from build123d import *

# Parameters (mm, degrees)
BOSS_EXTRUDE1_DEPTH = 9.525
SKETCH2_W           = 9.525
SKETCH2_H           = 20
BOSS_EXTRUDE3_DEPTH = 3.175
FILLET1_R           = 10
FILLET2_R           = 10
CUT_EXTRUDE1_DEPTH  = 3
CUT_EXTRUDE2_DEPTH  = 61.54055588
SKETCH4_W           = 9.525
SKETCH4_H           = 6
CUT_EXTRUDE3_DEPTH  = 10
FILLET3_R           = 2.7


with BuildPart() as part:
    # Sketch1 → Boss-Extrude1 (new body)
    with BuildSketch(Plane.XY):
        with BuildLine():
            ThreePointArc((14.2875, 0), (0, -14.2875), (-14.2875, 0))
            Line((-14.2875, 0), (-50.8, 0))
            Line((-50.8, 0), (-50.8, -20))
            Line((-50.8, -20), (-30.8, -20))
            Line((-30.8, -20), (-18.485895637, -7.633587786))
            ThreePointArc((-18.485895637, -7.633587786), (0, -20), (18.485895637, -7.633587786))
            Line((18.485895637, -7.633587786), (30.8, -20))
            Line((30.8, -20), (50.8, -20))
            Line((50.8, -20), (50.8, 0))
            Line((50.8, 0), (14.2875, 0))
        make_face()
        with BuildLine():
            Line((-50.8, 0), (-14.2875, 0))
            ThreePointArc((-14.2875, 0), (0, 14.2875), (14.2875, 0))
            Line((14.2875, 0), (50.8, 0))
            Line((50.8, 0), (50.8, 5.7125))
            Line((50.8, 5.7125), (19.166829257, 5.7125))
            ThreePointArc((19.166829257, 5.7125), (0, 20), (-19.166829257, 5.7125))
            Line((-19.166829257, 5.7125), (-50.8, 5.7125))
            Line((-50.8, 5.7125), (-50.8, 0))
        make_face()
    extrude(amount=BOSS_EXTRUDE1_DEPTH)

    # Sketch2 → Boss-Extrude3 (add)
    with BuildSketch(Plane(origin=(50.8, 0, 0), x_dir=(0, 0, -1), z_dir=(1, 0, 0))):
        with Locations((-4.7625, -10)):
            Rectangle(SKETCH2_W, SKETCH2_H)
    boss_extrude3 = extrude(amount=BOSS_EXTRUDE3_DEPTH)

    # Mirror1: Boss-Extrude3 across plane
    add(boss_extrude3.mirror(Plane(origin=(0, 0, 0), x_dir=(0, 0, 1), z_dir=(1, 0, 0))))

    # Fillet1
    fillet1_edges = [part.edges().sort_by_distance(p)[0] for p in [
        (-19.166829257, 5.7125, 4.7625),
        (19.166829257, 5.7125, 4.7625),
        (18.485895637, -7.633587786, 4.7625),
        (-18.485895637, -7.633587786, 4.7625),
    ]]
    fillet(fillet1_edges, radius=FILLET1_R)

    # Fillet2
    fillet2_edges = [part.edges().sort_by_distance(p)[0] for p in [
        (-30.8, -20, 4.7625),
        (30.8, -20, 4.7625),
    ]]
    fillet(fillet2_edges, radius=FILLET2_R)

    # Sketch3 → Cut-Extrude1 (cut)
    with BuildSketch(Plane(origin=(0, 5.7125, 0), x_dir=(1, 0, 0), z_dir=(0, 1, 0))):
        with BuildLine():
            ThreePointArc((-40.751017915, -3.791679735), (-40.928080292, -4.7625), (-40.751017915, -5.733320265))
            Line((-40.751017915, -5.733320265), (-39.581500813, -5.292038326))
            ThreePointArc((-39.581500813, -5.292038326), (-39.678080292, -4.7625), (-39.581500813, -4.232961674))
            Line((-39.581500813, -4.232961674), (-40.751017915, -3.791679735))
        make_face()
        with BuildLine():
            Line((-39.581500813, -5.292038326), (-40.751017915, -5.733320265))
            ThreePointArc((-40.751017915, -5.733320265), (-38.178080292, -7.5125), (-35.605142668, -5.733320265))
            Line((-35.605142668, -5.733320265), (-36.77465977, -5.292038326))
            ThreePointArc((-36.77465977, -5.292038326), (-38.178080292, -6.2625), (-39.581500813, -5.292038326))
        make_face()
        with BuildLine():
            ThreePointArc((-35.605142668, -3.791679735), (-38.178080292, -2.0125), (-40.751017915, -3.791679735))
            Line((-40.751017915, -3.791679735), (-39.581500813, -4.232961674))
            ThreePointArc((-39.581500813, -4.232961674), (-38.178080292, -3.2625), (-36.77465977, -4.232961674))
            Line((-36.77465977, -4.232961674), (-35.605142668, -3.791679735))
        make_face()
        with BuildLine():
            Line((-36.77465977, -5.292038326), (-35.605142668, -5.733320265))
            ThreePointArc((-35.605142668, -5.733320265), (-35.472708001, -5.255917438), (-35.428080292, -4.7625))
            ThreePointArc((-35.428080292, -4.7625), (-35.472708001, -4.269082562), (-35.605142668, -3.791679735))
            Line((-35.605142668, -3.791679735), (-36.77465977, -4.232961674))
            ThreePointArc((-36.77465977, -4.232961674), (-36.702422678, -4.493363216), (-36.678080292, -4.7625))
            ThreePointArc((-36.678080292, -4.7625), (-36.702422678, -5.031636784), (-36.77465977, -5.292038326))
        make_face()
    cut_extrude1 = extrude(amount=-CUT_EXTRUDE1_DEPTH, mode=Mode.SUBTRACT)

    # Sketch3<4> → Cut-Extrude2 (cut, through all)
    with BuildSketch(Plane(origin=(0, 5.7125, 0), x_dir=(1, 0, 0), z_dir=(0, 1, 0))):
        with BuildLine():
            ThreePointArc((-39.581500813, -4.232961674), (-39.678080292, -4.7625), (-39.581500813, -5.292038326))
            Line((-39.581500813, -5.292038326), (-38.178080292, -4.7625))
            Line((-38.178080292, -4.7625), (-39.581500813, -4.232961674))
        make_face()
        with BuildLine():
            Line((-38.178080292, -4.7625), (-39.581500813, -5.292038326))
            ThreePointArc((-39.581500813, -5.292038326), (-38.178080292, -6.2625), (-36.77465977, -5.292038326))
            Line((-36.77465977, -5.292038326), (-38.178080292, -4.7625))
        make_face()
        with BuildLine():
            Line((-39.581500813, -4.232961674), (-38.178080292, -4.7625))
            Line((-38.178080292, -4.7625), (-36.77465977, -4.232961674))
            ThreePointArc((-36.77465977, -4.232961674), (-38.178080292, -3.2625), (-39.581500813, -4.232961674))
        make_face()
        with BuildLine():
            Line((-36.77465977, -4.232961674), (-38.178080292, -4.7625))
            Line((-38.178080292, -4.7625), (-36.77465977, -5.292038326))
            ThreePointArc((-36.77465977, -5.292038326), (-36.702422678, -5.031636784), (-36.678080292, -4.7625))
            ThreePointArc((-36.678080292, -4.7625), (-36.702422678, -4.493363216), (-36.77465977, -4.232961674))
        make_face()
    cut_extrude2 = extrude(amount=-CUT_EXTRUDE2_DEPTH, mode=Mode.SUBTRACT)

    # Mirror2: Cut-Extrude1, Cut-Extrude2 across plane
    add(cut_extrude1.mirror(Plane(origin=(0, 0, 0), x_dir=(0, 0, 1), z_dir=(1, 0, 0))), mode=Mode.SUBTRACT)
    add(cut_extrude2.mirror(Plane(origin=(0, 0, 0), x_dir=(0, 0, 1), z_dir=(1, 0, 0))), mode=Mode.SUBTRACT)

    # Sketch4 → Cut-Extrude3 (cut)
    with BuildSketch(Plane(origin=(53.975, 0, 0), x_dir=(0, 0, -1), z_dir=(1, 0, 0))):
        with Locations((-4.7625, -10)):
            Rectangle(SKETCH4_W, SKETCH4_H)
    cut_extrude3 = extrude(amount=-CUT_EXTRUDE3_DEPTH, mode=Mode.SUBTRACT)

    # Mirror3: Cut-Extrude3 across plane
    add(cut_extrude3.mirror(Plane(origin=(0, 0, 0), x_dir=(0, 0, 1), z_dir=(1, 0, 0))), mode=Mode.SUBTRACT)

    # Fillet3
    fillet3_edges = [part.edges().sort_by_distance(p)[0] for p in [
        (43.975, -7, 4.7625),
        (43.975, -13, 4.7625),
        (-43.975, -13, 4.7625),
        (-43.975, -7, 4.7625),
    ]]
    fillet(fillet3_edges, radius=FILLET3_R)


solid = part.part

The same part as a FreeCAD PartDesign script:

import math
import FreeCAD as App
import Part
import Sketcher
Q = App.Units.Quantity


def edges_at(feature, points):
    """Names of the edges that pass closest to the given points."""
    edges = feature.Shape.Edges
    near = lambda p: min(range(len(edges)), key=lambda i: edges[i].distToShape(Part.Vertex(*p))[0])
    return sorted({f"Edge{near(p) + 1}" for p in points})


def add_polygon(sketch, points):
    """Adds a closed chain of lines whose ends are joined by coincident constraints."""
    first, n = sketch.GeometryCount, len(points)
    for a, b in zip(points, points[1:] + points[:1]):
        sketch.addGeometry(Part.LineSegment(App.Vector(*a, 0), App.Vector(*b, 0)), False)
    for i in range(n):
        sketch.addConstraint(Sketcher.Constraint("Coincident", first + i, 2, first + (i + 1) % n, 1))

doc = App.newDocument("Part")
body = doc.addObject("PartDesign::Body", "Body")

sketch1 = body.newObject("Sketcher::SketchObject", "Sketch")
sketch1.AttachmentSupport = (doc.getObject("XY_Plane"), [""])
sketch1.MapMode = "FlatFace"
sketch1.addGeometry([
    Part.LineSegment(App.Vector(-50.8, -20, 0), App.Vector(-30.8, -20, 0)),
    Part.LineSegment(App.Vector(-30.8, -20, 0), App.Vector(-18.485896, -7.633588, 0)),
    Part.ArcOfCircle(Part.Circle(App.Vector(0, 0, 0), App.Vector(0, 0, 1), 20), math.radians(-157.562253), math.radians(-22.437747)),
    Part.LineSegment(App.Vector(18.485896, -7.633588, 0), App.Vector(30.8, -20, 0)),
    Part.LineSegment(App.Vector(30.8, -20, 0), App.Vector(50.8, -20, 0)),
    Part.LineSegment(App.Vector(50.8, -20, 0), App.Vector(50.8, 5.7125, 0)),
    Part.LineSegment(App.Vector(50.8, 5.7125, 0), App.Vector(19.166829, 5.7125, 0)),
    Part.ArcOfCircle(Part.Circle(App.Vector(0, 0, 0), App.Vector(0, 0, 1), 20), math.radians(16.596211), math.radians(163.403789)),
    Part.LineSegment(App.Vector(-19.166829, 5.7125, 0), App.Vector(-50.8, 5.7125, 0)),
    Part.LineSegment(App.Vector(-50.8, 5.7125, 0), App.Vector(-50.8, -20, 0)),
    Part.Circle(App.Vector(0, 0, 0), App.Vector(0, 0, 1), 14.2875),
], False)
sketch1.addConstraint([
    Sketcher.Constraint("Coincident", 0, 2, 1, 1),
    Sketcher.Constraint("Coincident", 1, 2, 2, 1),
    Sketcher.Constraint("Coincident", 2, 2, 3, 1),
    Sketcher.Constraint("Coincident", 3, 2, 4, 1),
    Sketcher.Constraint("Coincident", 4, 2, 5, 1),
    Sketcher.Constraint("Coincident", 5, 2, 6, 1),
    Sketcher.Constraint("Coincident", 6, 2, 7, 1),
    Sketcher.Constraint("Coincident", 7, 2, 8, 1),
    Sketcher.Constraint("Coincident", 8, 2, 9, 1),
    Sketcher.Constraint("Coincident", 9, 2, 0, 1),
    Sketcher.Constraint("Horizontal", 0),
    Sketcher.Constraint("Horizontal", 4),
    Sketcher.Constraint("Vertical", 5),
    Sketcher.Constraint("Horizontal", 6),
    Sketcher.Constraint("Horizontal", 8),
    Sketcher.Constraint("Vertical", 9),
    Sketcher.Constraint("Coincident", 2, 3, -1, 1),
    Sketcher.Constraint("Coincident", 7, 3, -1, 1),
    Sketcher.Constraint("Coincident", 10, 3, -1, 1),
    Sketcher.Constraint("Equal", 2, 7),
    Sketcher.Constraint("Symmetric", 0, 2, 3, 2, -2),
    Sketcher.Constraint("Symmetric", 5, 2, 8, 2, -2),
    Sketcher.Constraint("Horizontal", 1, 2, 2, 2),
    Sketcher.Constraint("Radius", 2, Q("20 mm")),
    Sketcher.Constraint("DistanceX", 0, 1, 0, 2, Q("20 mm")),
    Sketcher.Constraint("Diameter", 10, Q("28.575 mm")),
    Sketcher.Constraint("DistanceY", 0, 2, -1, 1, Q("20 mm")),
    Sketcher.Constraint("DistanceX", 0, 2, -1, 1, Q("30.8 mm")),
    Sketcher.Constraint("DistanceY", 5, 1, 5, 2, Q("25.7125 mm")),
    Sketcher.Constraint("Distance", 1, Q("17.4518 mm")),
])
pad1 = body.newObject("PartDesign::Pad", "Pad")
pad1.Profile = sketch1
pad1.Length = 9.525

sketch2 = body.newObject("Sketcher::SketchObject", "Sketch001")
sketch2.AttachmentSupport = (doc.getObject("YZ_Plane"), [""])
sketch2.MapMode = "FlatFace"
sketch2.AttachmentOffset = App.Placement(App.Vector(0, 0, 50.8), App.Rotation())
add_polygon(sketch2, [(0, 9.525), (-20, 9.525), (-20, 0), (0, 0)])
sketch2.addConstraint([
    Sketcher.Constraint("Horizontal", 0),
    Sketcher.Constraint("Vertical", 1),
    Sketcher.Constraint("Horizontal", 2),
    Sketcher.Constraint("Vertical", 3),
    Sketcher.Constraint("Coincident", 2, 2, -1, 1),
    Sketcher.Constraint("DistanceX", 0, 2, 0, 1, Q("20 mm")),
    Sketcher.Constraint("DistanceY", 1, 2, 1, 1, Q("9.525 mm")),
])
pad2 = body.newObject("PartDesign::Pad", "Pad001")
pad2.Profile = sketch2
pad2.Length = 3.175
doc.recompute()

mirrored = body.newObject("PartDesign::Mirrored", "Mirrored")
mirrored.Originals = [pad2]
mirrored.MirrorPlane = (doc.getObject("YZ_Plane"), [""])
body.Tip = mirrored
doc.recompute()

fillet = body.newObject("PartDesign::Fillet", "Fillet")
fillet.Base = (mirrored, edges_at(mirrored, [
    (-19.167, 5.713, 4.763),
    (19.167, 5.713, 4.763),
    (18.486, -7.634, 4.763),
    (-18.486, -7.634, 4.763),
]))
fillet.Radius = 10
doc.recompute()

fillet2 = body.newObject("PartDesign::Fillet", "Fillet001")
fillet2.Base = (fillet, edges_at(fillet, [(-30.8, -20, 4.763), (30.8, -20, 4.763)]))
fillet2.Radius = 10

sketch3 = body.newObject("Sketcher::SketchObject", "Sketch002")
sketch3.AttachmentSupport = (doc.getObject("XZ_Plane"), [""])
sketch3.MapMode = "FlatFace"
sketch3.AttachmentOffset = App.Placement(App.Vector(0, 0, -5.7125), App.Rotation())
sketch3.addGeometry([
    Part.ArcOfCircle(Part.Circle(App.Vector(-38.17808, 4.7625, 0), App.Vector(0, 0, 1), 2.75), math.radians(-20.672483), math.radians(0)),
    Part.ArcOfCircle(Part.Circle(App.Vector(-38.17808, 4.7625, 0), App.Vector(0, 0, 1), 2.75), math.radians(-159.327517), math.radians(-20.672483)),
    Part.ArcOfCircle(Part.Circle(App.Vector(-38.17808, 4.7625, 0), App.Vector(0, 0, 1), 2.75), math.radians(159.327517), math.radians(200.672483)),
    Part.ArcOfCircle(Part.Circle(App.Vector(-38.17808, 4.7625, 0), App.Vector(0, 0, 1), 2.75), math.radians(20.672483), math.radians(159.327517)),
    Part.ArcOfCircle(Part.Circle(App.Vector(-38.17808, 4.7625, 0), App.Vector(0, 0, 1), 2.75), math.radians(0), math.radians(20.672483)),
    Part.ArcOfCircle(Part.Circle(App.Vector(-38.17808, 4.7625, 0), App.Vector(0, 0, 1), 1.5), math.radians(-20.672484), math.radians(0)),
    Part.ArcOfCircle(Part.Circle(App.Vector(-38.17808, 4.7625, 0), App.Vector(0, 0, 1), 1.5), math.radians(0), math.radians(20.672484)),
    Part.ArcOfCircle(Part.Circle(App.Vector(-38.17808, 4.7625, 0), App.Vector(0, 0, 1), 1.5), math.radians(20.672483), math.radians(159.327517)),
    Part.ArcOfCircle(Part.Circle(App.Vector(-38.17808, 4.7625, 0), App.Vector(0, 0, 1), 1.5), math.radians(159.327516), math.radians(200.672484)),
    Part.ArcOfCircle(Part.Circle(App.Vector(-38.17808, 4.7625, 0), App.Vector(0, 0, 1), 1.5), math.radians(-159.327517), math.radians(-20.672483)),
], False)
sketch3.addConstraint([
    Sketcher.Constraint("Tangent", 0, 1, 1, 2),
    Sketcher.Constraint("Tangent", 1, 1, 2, 2),
    Sketcher.Constraint("Tangent", 2, 1, 3, 2),
    Sketcher.Constraint("Tangent", 3, 1, 4, 2),
    Sketcher.Constraint("Tangent", 4, 1, 0, 2),
    Sketcher.Constraint("Tangent", 5, 2, 6, 1),
    Sketcher.Constraint("Tangent", 6, 2, 7, 1),
    Sketcher.Constraint("Tangent", 7, 2, 8, 1),
    Sketcher.Constraint("Tangent", 8, 2, 9, 1),
    Sketcher.Constraint("Tangent", 9, 2, 5, 1),
    Sketcher.Constraint("Coincident", 2, 3, 0, 3),
    Sketcher.Constraint("Coincident", 5, 3, 0, 3),
    Sketcher.Constraint("Coincident", 7, 3, 0, 3),
    Sketcher.Constraint("Horizontal", 0, 1, 1, 1),
    Sketcher.Constraint("Horizontal", 2, 1, 3, 1),
    Sketcher.Constraint("Horizontal", 9, 3, 4, 1),
    Sketcher.Constraint("Horizontal", 4, 1, 5, 2),
    Sketcher.Constraint("Horizontal", 6, 2, 7, 2),
    Sketcher.Constraint("Horizontal", 8, 2, 9, 2),
    Sketcher.Constraint("Vertical", 1, 1, 2, 1),
    Sketcher.Constraint("Vertical", 7, 2, 8, 2),
    Sketcher.Constraint("Radius", 5, Q("1.5 mm")),
    Sketcher.Constraint("Radius", 0, Q("2.75 mm")),
    Sketcher.Constraint("DistanceY", -1, 1, 0, 3, Q("4.7625 mm")),
    Sketcher.Constraint("DistanceX", 7, 2, -1, 1, Q("39.581501 mm")),
    Sketcher.Constraint("DistanceX", 0, 3, -1, 1, Q("38.17808 mm")),
    Sketcher.Constraint("DistanceY", -1, 1, 0, 1, Q("3.79168 mm")),
])
pocket1 = body.newObject("PartDesign::Pocket", "Pocket")
pocket1.Profile = sketch3
pocket1.Length = 3
pocket1.Reversed = True

sketch4 = body.newObject("Sketcher::SketchObject", "Sketch003")
sketch4.AttachmentSupport = (doc.getObject("XZ_Plane"), [""])
sketch4.MapMode = "FlatFace"
sketch4.AttachmentOffset = App.Placement(App.Vector(0, 0, -5.7125), App.Rotation())
sketch4.addGeometry([
    Part.ArcOfCircle(Part.Circle(App.Vector(-38.17808, 4.7625, 0), App.Vector(0, 0, 1), 1.5), math.radians(0), math.radians(20.672484)),
    Part.ArcOfCircle(Part.Circle(App.Vector(-38.17808, 4.7625, 0), App.Vector(0, 0, 1), 1.5), math.radians(-20.672484), math.radians(0)),
    Part.ArcOfCircle(Part.Circle(App.Vector(-38.17808, 4.7625, 0), App.Vector(0, 0, 1), 1.5), math.radians(-159.327517), math.radians(-20.672483)),
    Part.ArcOfCircle(Part.Circle(App.Vector(-38.17808, 4.7625, 0), App.Vector(0, 0, 1), 1.5), math.radians(159.327516), math.radians(200.672484)),
    Part.ArcOfCircle(Part.Circle(App.Vector(-38.17808, 4.7625, 0), App.Vector(0, 0, 1), 1.5), math.radians(20.672483), math.radians(159.327517)),
], False)
sketch4.addConstraint([
    Sketcher.Constraint("Tangent", 0, 1, 1, 2),
    Sketcher.Constraint("Tangent", 1, 1, 2, 2),
    Sketcher.Constraint("Tangent", 2, 1, 3, 2),
    Sketcher.Constraint("Tangent", 3, 1, 4, 2),
    Sketcher.Constraint("Tangent", 4, 1, 0, 2),
    Sketcher.Constraint("Coincident", 2, 3, 0, 3),
    Sketcher.Constraint("Horizontal", 4, 3, 0, 1),
    Sketcher.Constraint("Horizontal", 1, 1, 2, 1),
    Sketcher.Constraint("Horizontal", 3, 1, 4, 1),
    Sketcher.Constraint("Vertical", 2, 1, 3, 1),
    Sketcher.Constraint("Radius", 0, Q("1.5 mm")),
    Sketcher.Constraint("DistanceY", -1, 1, 0, 3, Q("4.7625 mm")),
    Sketcher.Constraint("DistanceX", 2, 1, -1, 1, Q("39.581501 mm")),
    Sketcher.Constraint("DistanceX", 0, 3, -1, 1, Q("38.17808 mm")),
])
pocket2 = body.newObject("PartDesign::Pocket", "Pocket001")
pocket2.Profile = sketch4
pocket2.Type = "ThroughAll"
pocket2.Reversed = True
doc.recompute()

mirrored2 = body.newObject("PartDesign::Mirrored", "Mirrored001")
mirrored2.Originals = [pocket1, pocket2]
mirrored2.MirrorPlane = (doc.getObject("YZ_Plane"), [""])
body.Tip = mirrored2

sketch5 = body.newObject("Sketcher::SketchObject", "Sketch004")
sketch5.AttachmentSupport = (doc.getObject("YZ_Plane"), [""])
sketch5.MapMode = "FlatFace"
sketch5.AttachmentOffset = App.Placement(App.Vector(0, 0, 53.975), App.Rotation())
add_polygon(sketch5, [(-7, 9.525), (-13, 9.525), (-13, 0), (-7, 0)])
sketch5.addConstraint([
    Sketcher.Constraint("Horizontal", 0),
    Sketcher.Constraint("Vertical", 1),
    Sketcher.Constraint("Horizontal", 2),
    Sketcher.Constraint("Vertical", 3),
    Sketcher.Constraint("PointOnObject", 1, 2, -1),
    Sketcher.Constraint("DistanceX", 0, 2, 0, 1, Q("6 mm")),
    Sketcher.Constraint("DistanceX", 0, 2, -1, 1, Q("13 mm")),
    Sketcher.Constraint("DistanceY", 1, 2, 1, 1, Q("9.525 mm")),
])
pocket3 = body.newObject("PartDesign::Pocket", "Pocket002")
pocket3.Profile = sketch5
pocket3.Length = 10
doc.recompute()

mirrored3 = body.newObject("PartDesign::Mirrored", "Mirrored002")
mirrored3.Originals = [pocket3]
mirrored3.MirrorPlane = (doc.getObject("YZ_Plane"), [""])
body.Tip = mirrored3
doc.recompute()

fillet3 = body.newObject("PartDesign::Fillet", "Fillet002")
fillet3.Base = (mirrored3, edges_at(mirrored3, [
    (43.975, -7, 4.763),
    (43.975, -13, 4.763),
    (-43.975, -13, 4.763),
    (-43.975, -7, 4.763),
]))
fillet3.Radius = 2.7

doc.recompute()
